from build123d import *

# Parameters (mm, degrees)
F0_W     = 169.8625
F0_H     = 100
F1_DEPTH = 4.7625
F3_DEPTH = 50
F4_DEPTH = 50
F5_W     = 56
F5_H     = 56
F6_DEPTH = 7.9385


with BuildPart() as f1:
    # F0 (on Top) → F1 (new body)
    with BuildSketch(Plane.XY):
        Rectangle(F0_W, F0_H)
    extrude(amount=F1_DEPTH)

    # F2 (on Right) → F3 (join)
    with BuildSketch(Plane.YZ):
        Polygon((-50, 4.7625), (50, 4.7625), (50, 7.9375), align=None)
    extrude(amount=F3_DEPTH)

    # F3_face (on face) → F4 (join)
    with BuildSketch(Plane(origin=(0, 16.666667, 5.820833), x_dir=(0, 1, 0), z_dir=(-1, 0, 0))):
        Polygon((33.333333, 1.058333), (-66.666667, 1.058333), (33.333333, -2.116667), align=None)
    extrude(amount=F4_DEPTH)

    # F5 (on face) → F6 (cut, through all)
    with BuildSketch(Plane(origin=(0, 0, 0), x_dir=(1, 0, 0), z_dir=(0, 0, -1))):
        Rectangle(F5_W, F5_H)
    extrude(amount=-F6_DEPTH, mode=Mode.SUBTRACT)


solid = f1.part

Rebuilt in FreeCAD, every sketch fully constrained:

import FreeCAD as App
import Part
import Sketcher

V = App.Vector


def add_polygon(sketch, points):
    """Adds a closed chain of lines whose ends are joined by coincident constraints."""
    first, n = sketch.GeometryCount, len(points)
    for a, b in zip(points, points[1:] + points[:1]):
        sketch.addGeometry(Part.LineSegment(App.Vector(*a, 0), App.Vector(*b, 0)), False)
    for i in range(n):
        sketch.addConstraint(Sketcher.Constraint("Coincident", first + i, 2, first + (i + 1) % n, 1))

doc = App.newDocument("Part")
body = doc.addObject("PartDesign::Body", "Body")

sketch1 = doc.addObject("Sketcher::SketchObject", "Sketch")
body.addObject(sketch1)
sketch1.AttachmentSupport = (doc.XY_Plane, [""])
sketch1.MapMode = "FlatFace"
add_polygon(sketch1, [(-85, 50), (-85, -50), (85, -50), (85, 50)])
sketch1.addConstraint([
    Sketcher.Constraint("Vertical", 0),
    Sketcher.Constraint("Horizontal", 1),
    Sketcher.Constraint("Vertical", 2),
    Sketcher.Constraint("Horizontal", 3),
    Sketcher.Constraint("Symmetric", 0, 2, 2, 2, -1, 1),
    Sketcher.Constraint("DistanceY", 0, 2, 0, 1, 100.0),
    Sketcher.Constraint("DistanceX", 1, 1, 1, 2, 169.8625),
])
pad1 = doc.addObject("PartDesign::Pad", "Pad")
body.addObject(pad1)
pad1.Profile = sketch1
pad1.Length = 4.7625

sketch2 = doc.addObject("Sketcher::SketchObject", "Sketch001")
body.addObject(sketch2)
sketch2.AttachmentSupport = (doc.YZ_Plane, [""])
sketch2.MapMode = "FlatFace"
add_polygon(sketch2, [(-50, 4.8), (50, 4.8), (50, 7.9)])
sketch2.addConstraint([
    Sketcher.Constraint("Horizontal", 0),
    Sketcher.Constraint("Vertical", 1),
    Sketcher.Constraint("DistanceX", 0, 1, 0, 2, 100.0),
    Sketcher.Constraint("DistanceX", -1, 1, 0, 2, 50.0),
    Sketcher.Constraint("DistanceY", 1, 1, 1, 2, 3.175),
    Sketcher.Constraint("DistanceY", -1, 1, 0, 2, 4.7625),
])
pad2 = doc.addObject("PartDesign::Pad", "Pad001")
body.addObject(pad2)
pad2.Profile = sketch2
pad2.Length = 50

sketch3 = doc.addObject("Sketcher::SketchObject", "Sketch002")
body.addObject(sketch3)
sketch3.AttachmentSupport = (doc.YZ_Plane, [""])
sketch3.MapMode = "FlatFace"
add_polygon(sketch3, [(50, 4.8), (-50, 4.8), (50, 7.9)])
sketch3.addConstraint([
    Sketcher.Constraint("Horizontal", 0),
    Sketcher.Constraint("Vertical", 2),
    Sketcher.Constraint("DistanceX", 0, 2, 0, 1, 100.0),
    Sketcher.Constraint("DistanceX", 0, 2, -1, 1, 50.0),
    Sketcher.Constraint("DistanceY", 2, 2, 2, 1, 3.175),
    Sketcher.Constraint("DistanceY", -1, 1, 0, 2, 4.7625),
])
pad3 = doc.addObject("PartDesign::Pad", "Pad002")
body.addObject(pad3)
pad3.Profile = sketch3
pad3.Length = 50
pad3.Reversed = True

sketch4 = doc.addObject("Sketcher::SketchObject", "Sketch003")
body.addObject(sketch4)
sketch4.AttachmentSupport = (doc.XY_Plane, [""])
sketch4.MapMode = "FlatFace"
add_polygon(sketch4, [(-28, -28), (-28, 28), (28, 28), (28, -28)])
sketch4.addConstraint([
    Sketcher.Constraint("Vertical", 0),
    Sketcher.Constraint("Horizontal", 1),
    Sketcher.Constraint("Vertical", 2),
    Sketcher.Constraint("Horizontal", 3),
    Sketcher.Constraint("Symmetric", 0, 2, 2, 2, -1, 1),
    Sketcher.Constraint("Equal", 3, 0),
    Sketcher.Constraint("DistanceX", 1, 1, 1, 2, 56.0),
])
pocket1 = doc.addObject("PartDesign::Pocket", "Pocket")
body.addObject(pocket1)
pocket1.Profile = sketch4
pocket1.Type = "ThroughAll"
pocket1.Reversed = True

doc.recompute()
